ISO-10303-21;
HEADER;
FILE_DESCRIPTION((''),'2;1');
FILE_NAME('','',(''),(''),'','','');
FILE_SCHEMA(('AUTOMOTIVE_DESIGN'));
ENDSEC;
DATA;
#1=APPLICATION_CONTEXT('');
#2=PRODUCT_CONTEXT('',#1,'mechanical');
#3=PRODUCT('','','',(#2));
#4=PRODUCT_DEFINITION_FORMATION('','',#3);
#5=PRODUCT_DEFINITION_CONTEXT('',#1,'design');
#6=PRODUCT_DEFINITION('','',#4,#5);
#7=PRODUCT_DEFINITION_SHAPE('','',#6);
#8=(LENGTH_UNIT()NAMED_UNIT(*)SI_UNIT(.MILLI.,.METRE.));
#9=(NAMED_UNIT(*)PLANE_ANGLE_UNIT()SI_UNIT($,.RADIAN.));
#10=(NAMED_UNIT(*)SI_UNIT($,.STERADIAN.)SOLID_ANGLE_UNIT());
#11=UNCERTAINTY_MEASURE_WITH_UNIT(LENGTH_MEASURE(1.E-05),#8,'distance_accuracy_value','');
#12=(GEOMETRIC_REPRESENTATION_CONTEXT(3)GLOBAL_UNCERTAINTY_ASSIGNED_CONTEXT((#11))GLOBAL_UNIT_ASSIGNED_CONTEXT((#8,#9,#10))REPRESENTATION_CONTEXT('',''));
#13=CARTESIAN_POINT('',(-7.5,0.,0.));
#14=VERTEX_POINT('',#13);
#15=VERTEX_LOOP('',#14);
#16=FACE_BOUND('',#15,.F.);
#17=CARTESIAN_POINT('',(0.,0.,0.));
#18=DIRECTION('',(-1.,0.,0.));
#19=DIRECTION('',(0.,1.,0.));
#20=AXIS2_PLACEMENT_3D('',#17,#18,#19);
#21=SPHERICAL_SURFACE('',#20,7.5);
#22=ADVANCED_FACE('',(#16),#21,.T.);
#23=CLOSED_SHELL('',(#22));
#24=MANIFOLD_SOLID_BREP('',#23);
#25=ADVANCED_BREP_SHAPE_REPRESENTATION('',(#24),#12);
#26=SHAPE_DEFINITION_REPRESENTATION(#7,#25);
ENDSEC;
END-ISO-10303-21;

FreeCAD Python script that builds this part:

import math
import FreeCAD as App
import Part
import Sketcher

V = App.Vector

doc = App.newDocument("Part")
body = doc.addObject("PartDesign::Body", "Body")

# Sketch on XY plane
sketch1 = body.newObject("Sketcher::SketchObject", "Sketch")
sketch1.AttachmentSupport = (doc.getObject("XY_Plane"), [""])
sketch1.MapMode = "FlatFace"
sketch1.addGeometry(Part.LineSegment(V(-7.5, 0, 0), V(7.5, 0, 0)), False)
sketch1.addGeometry(Part.ArcOfCircle(Part.Circle(V(0, 0, 0), V(0, 0, 1), 7.5), math.radians(0), math.radians(180)), False)
sketch1.addConstraint(Sketcher.Constraint("Coincident", 0, 1, 1, 2))
sketch1.addConstraint(Sketcher.Constraint("Coincident", 1, 1, 0, 2))
sketch1.addConstraint(Sketcher.Constraint("Horizontal", 0))
sketch1.addConstraint(Sketcher.Constraint("Coincident", 1, 3, -1, 1))
sketch1.addConstraint(Sketcher.Constraint("PointOnObject", 0, 1, -1))
sketch1.addConstraint(Sketcher.Constraint("Radius", 1, 7.5))
revolution = body.newObject("PartDesign::Revolution", "Revolution")
revolution.Profile = sketch1
revolution.ReferenceAxis = (sketch1, ["H_Axis"])
revolution.Angle = 360

doc.recompute()
